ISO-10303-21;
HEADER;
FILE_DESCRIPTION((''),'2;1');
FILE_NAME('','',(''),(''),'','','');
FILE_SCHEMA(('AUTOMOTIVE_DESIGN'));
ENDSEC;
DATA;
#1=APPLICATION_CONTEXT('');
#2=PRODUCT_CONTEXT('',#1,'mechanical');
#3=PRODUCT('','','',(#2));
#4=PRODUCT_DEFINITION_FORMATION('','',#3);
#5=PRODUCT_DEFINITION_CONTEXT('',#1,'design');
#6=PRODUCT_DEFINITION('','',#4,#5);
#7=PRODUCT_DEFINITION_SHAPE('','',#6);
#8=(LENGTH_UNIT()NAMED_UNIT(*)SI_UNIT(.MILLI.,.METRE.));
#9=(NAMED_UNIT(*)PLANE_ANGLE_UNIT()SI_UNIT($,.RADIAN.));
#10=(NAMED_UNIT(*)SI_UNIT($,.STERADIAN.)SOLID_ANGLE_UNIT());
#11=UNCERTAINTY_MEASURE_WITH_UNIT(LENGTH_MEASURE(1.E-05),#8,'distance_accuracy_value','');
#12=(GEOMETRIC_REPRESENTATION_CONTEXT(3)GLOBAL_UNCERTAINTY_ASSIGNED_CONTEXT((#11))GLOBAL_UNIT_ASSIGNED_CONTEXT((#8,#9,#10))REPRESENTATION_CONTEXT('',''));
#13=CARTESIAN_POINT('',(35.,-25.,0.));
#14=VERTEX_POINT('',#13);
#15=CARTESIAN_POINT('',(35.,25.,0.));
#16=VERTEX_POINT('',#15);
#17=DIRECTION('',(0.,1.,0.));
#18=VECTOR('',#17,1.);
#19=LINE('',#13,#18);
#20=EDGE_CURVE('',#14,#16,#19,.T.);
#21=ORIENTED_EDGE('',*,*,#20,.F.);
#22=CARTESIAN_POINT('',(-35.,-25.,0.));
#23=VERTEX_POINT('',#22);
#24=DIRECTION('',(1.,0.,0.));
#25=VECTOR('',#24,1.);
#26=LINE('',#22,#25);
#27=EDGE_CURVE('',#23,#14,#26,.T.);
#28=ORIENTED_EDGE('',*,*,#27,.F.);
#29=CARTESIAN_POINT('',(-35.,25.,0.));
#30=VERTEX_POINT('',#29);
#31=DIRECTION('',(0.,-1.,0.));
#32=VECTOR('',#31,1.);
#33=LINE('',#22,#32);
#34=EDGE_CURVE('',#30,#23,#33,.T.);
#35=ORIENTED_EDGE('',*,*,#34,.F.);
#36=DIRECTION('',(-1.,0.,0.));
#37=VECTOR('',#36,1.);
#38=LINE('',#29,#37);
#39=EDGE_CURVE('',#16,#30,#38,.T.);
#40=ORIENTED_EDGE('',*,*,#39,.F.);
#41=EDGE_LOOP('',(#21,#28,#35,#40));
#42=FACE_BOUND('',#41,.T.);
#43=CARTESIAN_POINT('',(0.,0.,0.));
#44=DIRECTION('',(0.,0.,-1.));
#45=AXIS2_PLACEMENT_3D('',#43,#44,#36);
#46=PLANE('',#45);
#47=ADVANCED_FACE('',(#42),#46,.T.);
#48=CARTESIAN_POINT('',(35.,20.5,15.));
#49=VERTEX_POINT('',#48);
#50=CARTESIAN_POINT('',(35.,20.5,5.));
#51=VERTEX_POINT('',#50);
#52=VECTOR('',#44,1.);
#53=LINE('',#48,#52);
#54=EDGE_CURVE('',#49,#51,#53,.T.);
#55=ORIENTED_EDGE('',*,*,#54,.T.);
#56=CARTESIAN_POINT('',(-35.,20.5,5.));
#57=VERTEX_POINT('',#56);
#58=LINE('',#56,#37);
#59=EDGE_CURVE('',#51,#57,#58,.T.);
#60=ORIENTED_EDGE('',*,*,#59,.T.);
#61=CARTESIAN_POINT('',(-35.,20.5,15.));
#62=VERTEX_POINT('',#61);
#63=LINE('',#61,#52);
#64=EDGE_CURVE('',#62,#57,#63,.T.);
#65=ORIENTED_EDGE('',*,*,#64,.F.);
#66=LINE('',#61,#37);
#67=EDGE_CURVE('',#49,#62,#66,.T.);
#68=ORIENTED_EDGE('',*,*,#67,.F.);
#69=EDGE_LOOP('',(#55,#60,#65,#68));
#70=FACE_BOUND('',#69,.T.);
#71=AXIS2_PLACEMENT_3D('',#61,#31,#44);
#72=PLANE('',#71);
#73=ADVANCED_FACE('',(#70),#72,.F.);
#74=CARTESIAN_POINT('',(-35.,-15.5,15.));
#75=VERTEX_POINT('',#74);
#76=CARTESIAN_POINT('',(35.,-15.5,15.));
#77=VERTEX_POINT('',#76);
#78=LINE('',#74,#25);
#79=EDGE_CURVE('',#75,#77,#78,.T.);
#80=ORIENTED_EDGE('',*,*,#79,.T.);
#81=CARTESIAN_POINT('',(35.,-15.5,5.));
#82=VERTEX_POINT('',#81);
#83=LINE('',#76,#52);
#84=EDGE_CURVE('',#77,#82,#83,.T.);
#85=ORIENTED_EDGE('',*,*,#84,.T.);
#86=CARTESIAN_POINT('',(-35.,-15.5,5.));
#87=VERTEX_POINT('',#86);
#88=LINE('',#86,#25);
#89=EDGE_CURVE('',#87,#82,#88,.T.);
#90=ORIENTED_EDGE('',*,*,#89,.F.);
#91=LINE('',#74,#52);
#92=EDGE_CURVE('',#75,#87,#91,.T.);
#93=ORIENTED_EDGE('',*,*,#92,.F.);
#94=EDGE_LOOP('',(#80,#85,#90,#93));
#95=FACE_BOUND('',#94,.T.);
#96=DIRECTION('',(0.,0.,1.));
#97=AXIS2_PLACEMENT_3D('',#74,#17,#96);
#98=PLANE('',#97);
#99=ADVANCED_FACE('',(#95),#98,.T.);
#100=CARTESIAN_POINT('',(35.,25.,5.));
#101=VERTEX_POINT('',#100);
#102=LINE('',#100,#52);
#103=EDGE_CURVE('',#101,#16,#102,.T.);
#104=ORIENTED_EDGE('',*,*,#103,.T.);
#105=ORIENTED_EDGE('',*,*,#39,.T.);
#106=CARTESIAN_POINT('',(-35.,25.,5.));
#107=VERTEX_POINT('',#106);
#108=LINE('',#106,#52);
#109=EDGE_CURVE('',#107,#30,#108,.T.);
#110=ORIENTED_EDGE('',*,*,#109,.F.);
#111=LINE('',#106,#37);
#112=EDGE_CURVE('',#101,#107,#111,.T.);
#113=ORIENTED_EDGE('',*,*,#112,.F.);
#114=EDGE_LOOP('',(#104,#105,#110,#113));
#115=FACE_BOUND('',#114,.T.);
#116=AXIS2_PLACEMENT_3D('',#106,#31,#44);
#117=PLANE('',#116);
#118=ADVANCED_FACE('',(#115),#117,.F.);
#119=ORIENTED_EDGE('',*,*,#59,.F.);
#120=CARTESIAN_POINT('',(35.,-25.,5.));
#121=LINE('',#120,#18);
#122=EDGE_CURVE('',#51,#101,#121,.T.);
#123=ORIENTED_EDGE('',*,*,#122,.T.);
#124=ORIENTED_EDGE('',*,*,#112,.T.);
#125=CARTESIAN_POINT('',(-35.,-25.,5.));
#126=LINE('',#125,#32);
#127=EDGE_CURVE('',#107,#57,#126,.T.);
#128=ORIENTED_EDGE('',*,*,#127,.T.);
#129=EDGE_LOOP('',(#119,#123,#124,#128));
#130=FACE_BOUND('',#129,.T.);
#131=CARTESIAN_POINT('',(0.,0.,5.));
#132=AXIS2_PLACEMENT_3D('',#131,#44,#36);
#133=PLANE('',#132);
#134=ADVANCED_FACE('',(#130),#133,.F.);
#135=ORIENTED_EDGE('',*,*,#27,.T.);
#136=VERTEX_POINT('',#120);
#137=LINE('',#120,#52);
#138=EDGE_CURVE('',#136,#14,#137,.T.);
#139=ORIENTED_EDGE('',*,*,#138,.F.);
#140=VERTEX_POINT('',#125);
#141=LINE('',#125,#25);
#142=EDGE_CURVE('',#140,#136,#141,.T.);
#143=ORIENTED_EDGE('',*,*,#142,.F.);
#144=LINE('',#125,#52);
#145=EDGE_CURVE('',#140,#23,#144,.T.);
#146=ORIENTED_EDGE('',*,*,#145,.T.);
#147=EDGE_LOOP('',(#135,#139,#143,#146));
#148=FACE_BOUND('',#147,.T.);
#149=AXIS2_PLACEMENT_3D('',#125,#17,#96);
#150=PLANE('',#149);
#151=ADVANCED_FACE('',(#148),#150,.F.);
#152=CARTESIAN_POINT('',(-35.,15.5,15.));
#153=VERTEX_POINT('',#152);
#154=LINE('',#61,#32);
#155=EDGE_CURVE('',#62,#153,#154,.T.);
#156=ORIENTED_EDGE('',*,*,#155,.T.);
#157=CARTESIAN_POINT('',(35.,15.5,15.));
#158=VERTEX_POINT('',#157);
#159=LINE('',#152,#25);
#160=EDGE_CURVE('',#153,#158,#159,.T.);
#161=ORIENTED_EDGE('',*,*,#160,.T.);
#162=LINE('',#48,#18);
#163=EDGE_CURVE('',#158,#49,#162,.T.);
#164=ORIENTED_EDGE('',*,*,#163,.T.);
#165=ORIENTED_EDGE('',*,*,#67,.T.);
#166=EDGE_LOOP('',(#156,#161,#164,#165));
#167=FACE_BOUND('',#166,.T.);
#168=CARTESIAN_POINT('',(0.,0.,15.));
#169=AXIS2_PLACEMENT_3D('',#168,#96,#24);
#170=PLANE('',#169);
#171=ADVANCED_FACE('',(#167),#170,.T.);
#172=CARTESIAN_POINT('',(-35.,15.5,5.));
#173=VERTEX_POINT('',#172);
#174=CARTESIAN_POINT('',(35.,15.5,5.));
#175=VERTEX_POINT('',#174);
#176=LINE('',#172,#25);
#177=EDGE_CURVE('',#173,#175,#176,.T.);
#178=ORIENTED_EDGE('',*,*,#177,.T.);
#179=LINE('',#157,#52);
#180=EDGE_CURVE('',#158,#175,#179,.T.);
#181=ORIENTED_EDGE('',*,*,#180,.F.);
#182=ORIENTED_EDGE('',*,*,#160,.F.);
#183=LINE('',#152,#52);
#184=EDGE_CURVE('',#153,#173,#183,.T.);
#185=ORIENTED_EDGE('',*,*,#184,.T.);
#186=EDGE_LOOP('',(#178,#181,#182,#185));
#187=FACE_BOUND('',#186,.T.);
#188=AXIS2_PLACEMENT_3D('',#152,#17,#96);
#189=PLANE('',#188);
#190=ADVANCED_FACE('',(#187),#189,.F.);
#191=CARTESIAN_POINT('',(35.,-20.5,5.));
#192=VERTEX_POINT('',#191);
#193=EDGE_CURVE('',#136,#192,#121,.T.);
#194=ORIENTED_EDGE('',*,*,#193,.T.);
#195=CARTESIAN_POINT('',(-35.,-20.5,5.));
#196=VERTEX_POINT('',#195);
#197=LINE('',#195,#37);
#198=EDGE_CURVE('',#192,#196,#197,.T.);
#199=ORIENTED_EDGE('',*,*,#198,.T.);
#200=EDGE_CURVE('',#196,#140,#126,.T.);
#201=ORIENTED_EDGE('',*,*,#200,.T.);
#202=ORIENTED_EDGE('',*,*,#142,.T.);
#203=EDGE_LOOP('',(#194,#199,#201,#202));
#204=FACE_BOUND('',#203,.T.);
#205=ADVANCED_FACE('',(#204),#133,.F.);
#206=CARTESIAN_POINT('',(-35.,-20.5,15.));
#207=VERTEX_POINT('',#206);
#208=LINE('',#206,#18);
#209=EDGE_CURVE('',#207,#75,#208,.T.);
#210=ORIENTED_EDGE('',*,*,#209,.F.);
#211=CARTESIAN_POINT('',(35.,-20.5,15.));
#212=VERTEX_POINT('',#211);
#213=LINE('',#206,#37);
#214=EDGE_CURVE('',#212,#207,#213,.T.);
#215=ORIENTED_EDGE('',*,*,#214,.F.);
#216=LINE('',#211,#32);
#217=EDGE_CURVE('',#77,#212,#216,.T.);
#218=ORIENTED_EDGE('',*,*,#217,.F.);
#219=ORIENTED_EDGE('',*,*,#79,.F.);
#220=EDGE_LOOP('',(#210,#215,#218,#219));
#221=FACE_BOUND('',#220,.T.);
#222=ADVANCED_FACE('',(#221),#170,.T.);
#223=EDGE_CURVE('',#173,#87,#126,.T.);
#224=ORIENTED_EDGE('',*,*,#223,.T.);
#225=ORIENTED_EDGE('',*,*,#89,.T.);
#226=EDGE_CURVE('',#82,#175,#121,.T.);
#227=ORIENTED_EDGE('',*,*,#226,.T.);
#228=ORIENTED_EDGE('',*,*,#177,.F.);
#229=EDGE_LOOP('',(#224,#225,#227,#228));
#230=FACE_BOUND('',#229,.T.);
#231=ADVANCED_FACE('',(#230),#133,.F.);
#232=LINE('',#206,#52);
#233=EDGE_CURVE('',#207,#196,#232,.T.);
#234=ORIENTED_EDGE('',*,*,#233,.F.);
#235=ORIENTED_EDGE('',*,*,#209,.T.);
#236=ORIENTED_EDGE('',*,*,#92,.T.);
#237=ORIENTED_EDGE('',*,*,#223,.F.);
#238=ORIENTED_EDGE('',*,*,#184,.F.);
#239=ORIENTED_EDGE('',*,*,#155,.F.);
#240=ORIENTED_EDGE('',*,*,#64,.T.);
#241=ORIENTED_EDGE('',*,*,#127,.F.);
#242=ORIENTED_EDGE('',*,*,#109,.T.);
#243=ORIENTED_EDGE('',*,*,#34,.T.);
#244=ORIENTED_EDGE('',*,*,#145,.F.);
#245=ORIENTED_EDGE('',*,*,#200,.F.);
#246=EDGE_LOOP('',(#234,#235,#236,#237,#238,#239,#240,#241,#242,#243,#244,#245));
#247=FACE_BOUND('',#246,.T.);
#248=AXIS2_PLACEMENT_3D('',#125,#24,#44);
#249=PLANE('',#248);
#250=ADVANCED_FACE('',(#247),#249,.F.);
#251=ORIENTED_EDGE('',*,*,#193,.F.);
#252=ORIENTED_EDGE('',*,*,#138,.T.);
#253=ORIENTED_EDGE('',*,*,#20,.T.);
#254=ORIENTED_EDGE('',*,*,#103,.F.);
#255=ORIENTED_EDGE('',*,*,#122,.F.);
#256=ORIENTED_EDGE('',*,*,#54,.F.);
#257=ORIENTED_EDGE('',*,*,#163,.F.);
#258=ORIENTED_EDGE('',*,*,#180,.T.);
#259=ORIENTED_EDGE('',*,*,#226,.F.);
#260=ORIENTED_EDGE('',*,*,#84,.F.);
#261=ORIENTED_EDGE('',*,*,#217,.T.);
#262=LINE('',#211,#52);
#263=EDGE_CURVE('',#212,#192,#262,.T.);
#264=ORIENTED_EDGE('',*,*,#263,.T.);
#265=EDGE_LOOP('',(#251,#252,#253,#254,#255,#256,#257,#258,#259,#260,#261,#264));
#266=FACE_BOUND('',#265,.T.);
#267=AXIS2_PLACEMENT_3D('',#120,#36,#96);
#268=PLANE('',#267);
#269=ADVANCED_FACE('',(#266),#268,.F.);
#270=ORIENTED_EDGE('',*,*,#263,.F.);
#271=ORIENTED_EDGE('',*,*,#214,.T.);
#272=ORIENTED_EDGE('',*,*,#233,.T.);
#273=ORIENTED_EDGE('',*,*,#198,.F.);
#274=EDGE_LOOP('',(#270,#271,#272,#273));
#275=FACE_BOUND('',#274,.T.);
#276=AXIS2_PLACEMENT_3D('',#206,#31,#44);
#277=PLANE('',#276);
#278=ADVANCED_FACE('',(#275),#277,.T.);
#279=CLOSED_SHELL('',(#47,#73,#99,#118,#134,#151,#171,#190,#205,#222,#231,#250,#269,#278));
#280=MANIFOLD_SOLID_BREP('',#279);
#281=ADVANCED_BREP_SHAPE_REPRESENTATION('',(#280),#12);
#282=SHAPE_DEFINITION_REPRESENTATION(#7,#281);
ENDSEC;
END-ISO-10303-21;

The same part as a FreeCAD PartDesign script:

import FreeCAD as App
import Part
import Sketcher

V = App.Vector
Q = App.Units.Quantity


def add_polygon(sketch, points):
    """Adds a closed chain of lines whose ends are joined by coincident constraints."""
    first, n = sketch.GeometryCount, len(points)
    for a, b in zip(points, points[1:] + points[:1]):
        sketch.addGeometry(Part.LineSegment(App.Vector(*a, 0), App.Vector(*b, 0)), False)
    for i in range(n):
        sketch.addConstraint(Sketcher.Constraint("Coincident", first + i, 2, first + (i + 1) % n, 1))

doc = App.newDocument("Part")
params = doc.addObject("Spreadsheet::Sheet", "Params")
for row, (alias, value) in enumerate([
    ("sketch1_width", "70 mm"),
    ("sketch1_height", "50 mm"),
    ("pad1_length", "5 mm"),
    ("sketch2_width", "70 mm"),
    ("sketch2_height", "5 mm"),
    ("pad2_length", "10 mm"),
], start=1):
    params.set(f"A{row}", alias)
    params.set(f"B{row}", "=" + value)
    params.setAlias(f"B{row}", alias)

body = doc.addObject("PartDesign::Body", "Body")

sketch1 = body.newObject("Sketcher::SketchObject", "Sketch")
sketch1.AttachmentSupport = (doc.getObject("XY_Plane"), [""])
sketch1.MapMode = "FlatFace"
add_polygon(sketch1, [(-35, 25), (-35, -25), (35, -25), (35, 25)])
sketch1.addConstraint([
    Sketcher.Constraint("Vertical", 0),
    Sketcher.Constraint("Horizontal", 1),
    Sketcher.Constraint("Vertical", 2),
    Sketcher.Constraint("Horizontal", 3),
    Sketcher.Constraint("Symmetric", 0, 2, 2, 2, -1, 1),
    Sketcher.Constraint("DistanceX", 1, 1, 1, 2, Q("70 mm")),
    Sketcher.Constraint("DistanceY", 0, 2, 0, 1, Q("50 mm")),
])
sketch1.setExpression("Constraints[9]", "Params.sketch1_width")
sketch1.setExpression("Constraints[10]", "Params.sketch1_height")
pad1 = body.newObject("PartDesign::Pad", "Pad")
pad1.Profile = sketch1
pad1.setExpression("Length", "Params.pad1_length")

sketch2 = body.newObject("Sketcher::SketchObject", "Sketch001")
sketch2.AttachmentSupport = (doc.getObject("XY_Plane"), [""])
sketch2.MapMode = "FlatFace"
sketch2.AttachmentOffset = App.Placement(V(0, 0, 5), App.Rotation())
add_polygon(sketch2, [(-35, 20), (-35, 16), (35, 16), (35, 20)])
sketch2.addConstraint([
    Sketcher.Constraint("Vertical", 0),
    Sketcher.Constraint("Horizontal", 1),
    Sketcher.Constraint("Vertical", 2),
    Sketcher.Constraint("Horizontal", 3),
    Sketcher.Constraint("DistanceX", 1, 1, 1, 2, Q("70 mm")),
    Sketcher.Constraint("DistanceY", 0, 2, 0, 1, Q("5 mm")),
    Sketcher.Constraint("DistanceX", 0, 2, -1, 1, Q("35 mm")),
    Sketcher.Constraint("DistanceY", -1, 1, 0, 2, Q("15.5 mm")),
])
sketch2.setExpression("Constraints[8]", "Params.sketch2_width")
sketch2.setExpression("Constraints[9]", "Params.sketch2_height")
pad2 = body.newObject("PartDesign::Pad", "Pad001")
pad2.Profile = sketch2
pad2.setExpression("Length", "Params.pad2_length")
doc.recompute()

mirrored = body.newObject("PartDesign::Mirrored", "Mirrored")
mirrored.Originals = [pad2]
mirrored.MirrorPlane = (doc.getObject("XZ_Plane"), [""])
body.Tip = mirrored

doc.recompute()
